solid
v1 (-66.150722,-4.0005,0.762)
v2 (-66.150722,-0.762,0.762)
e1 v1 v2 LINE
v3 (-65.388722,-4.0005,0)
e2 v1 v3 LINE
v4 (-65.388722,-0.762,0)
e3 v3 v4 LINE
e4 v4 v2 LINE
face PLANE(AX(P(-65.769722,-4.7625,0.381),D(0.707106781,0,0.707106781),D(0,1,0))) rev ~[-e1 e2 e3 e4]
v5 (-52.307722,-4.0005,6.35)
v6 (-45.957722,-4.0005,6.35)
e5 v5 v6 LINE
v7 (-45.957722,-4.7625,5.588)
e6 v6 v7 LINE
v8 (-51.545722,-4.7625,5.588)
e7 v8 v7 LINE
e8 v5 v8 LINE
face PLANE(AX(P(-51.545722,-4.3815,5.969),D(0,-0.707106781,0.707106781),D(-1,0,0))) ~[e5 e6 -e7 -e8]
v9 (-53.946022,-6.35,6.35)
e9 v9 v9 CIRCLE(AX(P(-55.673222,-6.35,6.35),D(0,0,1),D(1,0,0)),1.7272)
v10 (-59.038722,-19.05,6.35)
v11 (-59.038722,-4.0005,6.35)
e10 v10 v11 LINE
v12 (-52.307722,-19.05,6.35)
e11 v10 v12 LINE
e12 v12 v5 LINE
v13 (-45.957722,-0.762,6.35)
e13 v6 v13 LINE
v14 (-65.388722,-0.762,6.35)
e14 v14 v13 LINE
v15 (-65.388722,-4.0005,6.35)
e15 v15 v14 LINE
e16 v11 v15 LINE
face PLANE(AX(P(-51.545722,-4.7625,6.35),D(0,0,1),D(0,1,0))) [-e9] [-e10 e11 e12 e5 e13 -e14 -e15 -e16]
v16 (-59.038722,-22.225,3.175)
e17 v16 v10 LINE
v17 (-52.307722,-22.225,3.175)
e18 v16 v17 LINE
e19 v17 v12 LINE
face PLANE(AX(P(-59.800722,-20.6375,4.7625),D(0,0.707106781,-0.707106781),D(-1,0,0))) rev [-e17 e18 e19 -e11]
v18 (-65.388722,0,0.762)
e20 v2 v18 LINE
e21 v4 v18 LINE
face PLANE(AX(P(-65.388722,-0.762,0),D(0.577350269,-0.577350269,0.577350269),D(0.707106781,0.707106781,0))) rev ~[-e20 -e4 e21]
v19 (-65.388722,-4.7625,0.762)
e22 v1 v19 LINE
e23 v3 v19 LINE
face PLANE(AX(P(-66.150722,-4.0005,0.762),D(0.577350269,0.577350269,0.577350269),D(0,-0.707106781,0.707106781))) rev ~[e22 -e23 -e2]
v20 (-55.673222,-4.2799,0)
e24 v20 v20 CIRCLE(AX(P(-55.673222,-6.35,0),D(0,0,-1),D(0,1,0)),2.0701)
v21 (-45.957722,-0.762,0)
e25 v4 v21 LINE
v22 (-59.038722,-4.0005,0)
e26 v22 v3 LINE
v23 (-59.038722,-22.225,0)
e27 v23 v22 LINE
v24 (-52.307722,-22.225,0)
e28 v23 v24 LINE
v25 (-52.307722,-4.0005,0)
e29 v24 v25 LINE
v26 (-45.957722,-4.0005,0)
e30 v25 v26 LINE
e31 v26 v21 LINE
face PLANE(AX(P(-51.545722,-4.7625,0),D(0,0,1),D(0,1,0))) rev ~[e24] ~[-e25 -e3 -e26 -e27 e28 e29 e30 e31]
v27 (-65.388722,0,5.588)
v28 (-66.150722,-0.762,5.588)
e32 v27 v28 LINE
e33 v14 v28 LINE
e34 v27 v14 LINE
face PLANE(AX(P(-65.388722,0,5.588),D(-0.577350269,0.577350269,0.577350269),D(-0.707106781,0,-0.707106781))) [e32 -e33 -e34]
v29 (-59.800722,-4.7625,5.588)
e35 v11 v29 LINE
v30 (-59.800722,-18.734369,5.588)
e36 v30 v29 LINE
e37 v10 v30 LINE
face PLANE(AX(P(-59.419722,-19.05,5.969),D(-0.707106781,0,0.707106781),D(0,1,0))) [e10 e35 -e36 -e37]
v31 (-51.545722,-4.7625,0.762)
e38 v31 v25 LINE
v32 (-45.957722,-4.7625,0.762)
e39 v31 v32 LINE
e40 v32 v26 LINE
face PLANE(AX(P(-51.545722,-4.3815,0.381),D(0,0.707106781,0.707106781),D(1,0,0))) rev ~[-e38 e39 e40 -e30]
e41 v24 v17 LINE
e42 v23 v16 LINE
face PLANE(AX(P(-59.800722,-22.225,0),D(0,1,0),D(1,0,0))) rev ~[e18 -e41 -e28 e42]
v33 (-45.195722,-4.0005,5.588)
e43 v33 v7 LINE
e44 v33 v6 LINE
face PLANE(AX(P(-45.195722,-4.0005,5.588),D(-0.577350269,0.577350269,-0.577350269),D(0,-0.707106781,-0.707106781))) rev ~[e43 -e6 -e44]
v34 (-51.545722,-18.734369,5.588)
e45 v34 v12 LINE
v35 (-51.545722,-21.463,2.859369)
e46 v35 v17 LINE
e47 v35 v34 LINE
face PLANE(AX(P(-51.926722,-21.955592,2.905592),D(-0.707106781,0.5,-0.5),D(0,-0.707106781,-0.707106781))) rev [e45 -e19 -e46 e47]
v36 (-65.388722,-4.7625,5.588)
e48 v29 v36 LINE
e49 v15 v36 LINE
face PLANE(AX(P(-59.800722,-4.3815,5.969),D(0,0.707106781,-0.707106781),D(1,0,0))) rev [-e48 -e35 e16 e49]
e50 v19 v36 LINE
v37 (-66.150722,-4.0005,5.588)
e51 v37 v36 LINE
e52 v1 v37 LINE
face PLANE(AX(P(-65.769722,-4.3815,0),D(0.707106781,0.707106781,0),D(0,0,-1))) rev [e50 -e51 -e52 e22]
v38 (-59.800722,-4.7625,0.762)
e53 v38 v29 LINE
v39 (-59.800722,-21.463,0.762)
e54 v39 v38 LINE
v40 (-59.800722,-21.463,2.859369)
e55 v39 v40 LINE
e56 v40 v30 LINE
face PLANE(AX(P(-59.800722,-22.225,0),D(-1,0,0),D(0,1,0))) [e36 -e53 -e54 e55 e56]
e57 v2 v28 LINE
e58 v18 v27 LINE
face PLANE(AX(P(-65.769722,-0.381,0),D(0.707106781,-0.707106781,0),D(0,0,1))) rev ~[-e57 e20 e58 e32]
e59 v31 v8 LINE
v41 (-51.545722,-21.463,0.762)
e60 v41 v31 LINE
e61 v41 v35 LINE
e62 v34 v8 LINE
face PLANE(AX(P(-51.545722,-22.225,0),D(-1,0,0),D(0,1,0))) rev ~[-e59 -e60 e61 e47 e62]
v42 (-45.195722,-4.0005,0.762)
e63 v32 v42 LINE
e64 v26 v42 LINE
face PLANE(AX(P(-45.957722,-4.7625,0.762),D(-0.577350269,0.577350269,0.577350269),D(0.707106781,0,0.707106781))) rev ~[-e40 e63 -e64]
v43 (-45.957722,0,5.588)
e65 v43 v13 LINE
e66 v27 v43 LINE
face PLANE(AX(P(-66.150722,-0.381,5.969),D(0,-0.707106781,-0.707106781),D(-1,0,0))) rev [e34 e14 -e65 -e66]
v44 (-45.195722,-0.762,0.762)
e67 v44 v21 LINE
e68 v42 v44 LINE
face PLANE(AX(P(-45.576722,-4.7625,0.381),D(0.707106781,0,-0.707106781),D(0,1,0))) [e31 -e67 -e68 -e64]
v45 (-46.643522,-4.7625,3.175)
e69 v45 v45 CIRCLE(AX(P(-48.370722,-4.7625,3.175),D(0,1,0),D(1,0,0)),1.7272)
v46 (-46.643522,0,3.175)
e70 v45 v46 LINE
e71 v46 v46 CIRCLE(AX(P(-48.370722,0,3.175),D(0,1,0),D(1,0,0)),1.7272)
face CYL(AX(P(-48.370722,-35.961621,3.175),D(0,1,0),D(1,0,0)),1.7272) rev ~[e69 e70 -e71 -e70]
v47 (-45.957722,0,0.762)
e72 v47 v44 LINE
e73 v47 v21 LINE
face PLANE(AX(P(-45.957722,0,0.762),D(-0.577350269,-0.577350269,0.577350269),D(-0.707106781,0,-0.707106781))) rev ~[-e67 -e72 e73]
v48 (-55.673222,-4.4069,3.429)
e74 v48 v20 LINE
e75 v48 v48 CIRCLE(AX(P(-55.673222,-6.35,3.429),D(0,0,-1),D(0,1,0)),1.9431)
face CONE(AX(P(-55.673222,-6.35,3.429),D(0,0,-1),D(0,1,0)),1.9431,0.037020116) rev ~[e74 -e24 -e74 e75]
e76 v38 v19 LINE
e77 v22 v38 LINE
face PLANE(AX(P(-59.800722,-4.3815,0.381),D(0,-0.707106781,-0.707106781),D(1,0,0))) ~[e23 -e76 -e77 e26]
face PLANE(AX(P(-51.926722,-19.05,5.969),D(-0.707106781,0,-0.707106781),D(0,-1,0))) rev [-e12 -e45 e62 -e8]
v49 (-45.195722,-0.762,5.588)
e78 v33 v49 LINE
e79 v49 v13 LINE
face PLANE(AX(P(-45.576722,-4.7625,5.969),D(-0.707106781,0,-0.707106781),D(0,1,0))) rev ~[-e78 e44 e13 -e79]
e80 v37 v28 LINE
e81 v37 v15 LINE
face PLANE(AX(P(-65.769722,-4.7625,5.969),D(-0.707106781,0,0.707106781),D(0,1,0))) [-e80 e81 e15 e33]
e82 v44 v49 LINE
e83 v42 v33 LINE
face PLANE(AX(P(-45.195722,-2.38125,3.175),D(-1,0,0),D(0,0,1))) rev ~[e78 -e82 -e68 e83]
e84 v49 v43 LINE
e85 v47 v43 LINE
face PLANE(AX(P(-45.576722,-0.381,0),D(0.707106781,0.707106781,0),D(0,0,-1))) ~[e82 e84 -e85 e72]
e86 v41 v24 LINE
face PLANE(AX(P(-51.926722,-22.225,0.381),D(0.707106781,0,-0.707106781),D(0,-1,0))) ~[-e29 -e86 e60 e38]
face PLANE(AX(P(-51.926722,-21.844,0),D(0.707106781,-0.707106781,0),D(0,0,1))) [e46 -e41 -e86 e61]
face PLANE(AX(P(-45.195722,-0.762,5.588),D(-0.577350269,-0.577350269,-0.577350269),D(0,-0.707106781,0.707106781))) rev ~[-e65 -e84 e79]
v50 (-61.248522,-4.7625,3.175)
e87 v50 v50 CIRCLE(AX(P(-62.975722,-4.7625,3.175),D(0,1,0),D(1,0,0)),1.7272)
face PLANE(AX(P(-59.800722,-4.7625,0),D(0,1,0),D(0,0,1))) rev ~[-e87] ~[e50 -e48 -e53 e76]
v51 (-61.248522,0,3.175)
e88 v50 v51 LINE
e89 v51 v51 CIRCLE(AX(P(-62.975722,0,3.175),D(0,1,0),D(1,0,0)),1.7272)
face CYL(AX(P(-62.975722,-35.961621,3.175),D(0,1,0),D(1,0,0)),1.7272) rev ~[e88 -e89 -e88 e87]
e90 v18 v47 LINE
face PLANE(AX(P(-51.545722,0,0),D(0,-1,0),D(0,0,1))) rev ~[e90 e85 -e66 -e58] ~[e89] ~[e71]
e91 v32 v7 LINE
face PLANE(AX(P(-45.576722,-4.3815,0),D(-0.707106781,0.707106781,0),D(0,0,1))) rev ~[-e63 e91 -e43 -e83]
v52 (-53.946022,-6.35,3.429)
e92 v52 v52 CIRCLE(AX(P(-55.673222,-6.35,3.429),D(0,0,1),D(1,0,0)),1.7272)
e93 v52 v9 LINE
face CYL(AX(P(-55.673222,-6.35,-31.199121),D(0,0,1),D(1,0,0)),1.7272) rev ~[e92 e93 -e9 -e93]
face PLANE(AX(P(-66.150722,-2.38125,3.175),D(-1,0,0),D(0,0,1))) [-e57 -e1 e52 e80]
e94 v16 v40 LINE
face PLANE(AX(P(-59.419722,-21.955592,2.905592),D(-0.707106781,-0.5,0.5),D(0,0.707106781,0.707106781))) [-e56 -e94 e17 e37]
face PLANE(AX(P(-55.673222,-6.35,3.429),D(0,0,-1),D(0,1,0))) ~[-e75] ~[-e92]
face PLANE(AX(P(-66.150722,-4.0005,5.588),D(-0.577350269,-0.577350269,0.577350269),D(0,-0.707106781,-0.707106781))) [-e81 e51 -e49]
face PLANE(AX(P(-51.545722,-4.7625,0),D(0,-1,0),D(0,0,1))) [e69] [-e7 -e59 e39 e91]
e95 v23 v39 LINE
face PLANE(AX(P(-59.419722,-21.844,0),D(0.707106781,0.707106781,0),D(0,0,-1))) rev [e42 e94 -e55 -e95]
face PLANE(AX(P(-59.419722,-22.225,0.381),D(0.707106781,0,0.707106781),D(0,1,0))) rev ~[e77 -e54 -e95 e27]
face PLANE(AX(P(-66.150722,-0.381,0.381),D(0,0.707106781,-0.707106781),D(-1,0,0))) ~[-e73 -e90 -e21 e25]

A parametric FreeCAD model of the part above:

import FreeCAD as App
import Part
import Sketcher

V = App.Vector
Q = App.Units.Quantity


def edges_at(feature, points):
    """Names of the edges that pass closest to the given points."""
    edges = feature.Shape.Edges
    near = lambda p: min(range(len(edges)), key=lambda i: edges[i].distToShape(Part.Vertex(*p))[0])
    return sorted({f"Edge{near(p) + 1}" for p in points})


def add_polygon(sketch, points):
    """Adds a closed chain of lines whose ends are joined by coincident constraints."""
    first, n = sketch.GeometryCount, len(points)
    for a, b in zip(points, points[1:] + points[:1]):
        sketch.addGeometry(Part.LineSegment(App.Vector(*a, 0), App.Vector(*b, 0)), False)
    for i in range(n):
        sketch.addConstraint(Sketcher.Constraint("Coincident", first + i, 2, first + (i + 1) % n, 1))

doc = App.newDocument("Part")
body = doc.addObject("PartDesign::Body", "Body")

# Sketch on XY plane
sketch1 = body.newObject("Sketcher::SketchObject", "Sketch")
sketch1.AttachmentSupport = (doc.getObject("XY_Plane"), [""])
sketch1.MapMode = "FlatFace"
add_polygon(sketch1, [(-60, 0), (-60, -22), (-52, -22), (-52, 0)])  # lines 0-3
sketch1.addConstraint([
    Sketcher.Constraint("Vertical", 0),
    Sketcher.Constraint("Horizontal", 1),
    Sketcher.Constraint("Vertical", 2),
    Sketcher.Constraint("Horizontal", 3),
    Sketcher.Constraint("PointOnObject", 2, 2, -1),
    Sketcher.Constraint("DistanceX", 1, 1, 1, 2, Q("0.325 in")),
    Sketcher.Constraint("DistanceY", 0, 2, 0, 1, Q("0.875 in")),
    Sketcher.Constraint("DistanceX", 0, 2, -1, 1, 59.800722),
])
pad1 = body.newObject("PartDesign::Pad", "Pad")
pad1.Profile = sketch1
pad1.Length = Q("0.25 in")

# Sketch on YZ plane
sketch2 = body.newObject("Sketcher::SketchObject", "Sketch001")
sketch2.AttachmentSupport = (doc.getObject("YZ_Plane"), [""])
sketch2.MapMode = "FlatFace"
sketch2.AttachmentOffset = App.Placement(V(0, 0, -59.800722), App.Rotation())
add_polygon(sketch2, [(0, 0), (-4.8, 0), (-4.8, 6.3), (0, 6.3)])  # lines 0-3
sketch2.addConstraint([
    Sketcher.Constraint("Horizontal", 0),
    Sketcher.Constraint("Vertical", 1),
    Sketcher.Constraint("Horizontal", 2),
    Sketcher.Constraint("Vertical", 3),
    Sketcher.Constraint("Coincident", 3, 2, -1, 1),
    Sketcher.Constraint("DistanceY", 1, 1, 1, 2, Q("0.25 in")),
    Sketcher.Constraint("DistanceX", 0, 2, 0, 1, Q("0.1875 in")),
])
pad2 = body.newObject("PartDesign::Pad", "Pad001")
pad2.Profile = sketch2
pad2.Length = Q("0.25 in")
pad2.Reversed = True

# Sketch on YZ plane
sketch3 = body.newObject("Sketcher::SketchObject", "Sketch002")
sketch3.AttachmentSupport = (doc.getObject("YZ_Plane"), [""])
sketch3.MapMode = "FlatFace"
sketch3.AttachmentOffset = App.Placement(V(0, 0, -51.545722), App.Rotation())
add_polygon(sketch3, [(0, 0), (-4.8, 0), (-4.8, 6.3), (0, 6.3)])  # lines 0-3
sketch3.addConstraint([
    Sketcher.Constraint("Horizontal", 0),
    Sketcher.Constraint("Vertical", 1),
    Sketcher.Constraint("Horizontal", 2),
    Sketcher.Constraint("Vertical", 3),
    Sketcher.Constraint("Coincident", 3, 2, -1, 1),
    Sketcher.Constraint("DistanceY", 1, 1, 1, 2, Q("0.25 in")),
    Sketcher.Constraint("DistanceX", 0, 2, 0, 1, Q("0.1875 in")),
])
pad3 = body.newObject("PartDesign::Pad", "Pad002")
pad3.Profile = sketch3
pad3.Length = Q("0.25 in")

# Sketch on XY plane
sketch4 = body.newObject("Sketcher::SketchObject", "Sketch003")
sketch4.AttachmentSupport = (doc.getObject("XY_Plane"), [""])
sketch4.MapMode = "FlatFace"
sketch4.addGeometry(Part.Circle(V(-55.7, -6.3, 0), V(0, 0, 1), 1.7), False)
sketch4.addConstraint([
    Sketcher.Constraint("Diameter", 0, Q("0.136 in")),
    Sketcher.Constraint("DistanceY", 0, 3, -1, 1, Q("0.25 in")),
    Sketcher.Constraint("DistanceX", 0, 3, -1, 1, 55.673222),
])
doc.recompute()
hole = body.newObject("PartDesign::Hole", "Hole")
hole.Profile = sketch4
hole.ThreadType = "None"
hole.Diameter = Q("0.136 in")
hole.DepthType = "ThroughAll"
hole.Reversed = True

# Sketch on YZ plane
sketch5 = body.newObject("Sketcher::SketchObject", "Sketch004")
sketch5.AttachmentSupport = (doc.getObject("YZ_Plane"), [""])
sketch5.MapMode = "FlatFace"
sketch5.AttachmentOffset = App.Placement(V(0, 0, -55.673222), App.Rotation())
add_polygon(sketch5, [(-6.3, 3.4), (-6.3, 0), (-4.3, 0), (-4.4, 3.4)])  # lines 0-3
sketch5.addGeometry(Part.LineSegment(V(-6.3, 3.4, 0), V(-6.3, 0, 0)), True)  # axis
sketch5.addConstraint([
    Sketcher.Constraint("Vertical", 0),
    Sketcher.Constraint("Horizontal", 1),
    Sketcher.Constraint("Horizontal", 3),
    Sketcher.Constraint("Vertical", 4),
    Sketcher.Constraint("Coincident", 4, 1, 3, 2),
    Sketcher.Constraint("PointOnObject", 0, 2, -1),
    Sketcher.Constraint("PointOnObject", 4, 2, -1),
    Sketcher.Constraint("DistanceY", 0, 2, 0, 1, Q("0.135 in")),
    Sketcher.Constraint("DistanceX", 0, 2, -1, 1, Q("0.25 in")),
    Sketcher.Constraint("DistanceX", 1, 1, 1, 2, Q("0.0815 in")),
    Sketcher.Constraint("DistanceX", 3, 2, 3, 1, Q("0.0765 in")),
])
groove = body.newObject("PartDesign::Groove", "Groove")
groove.Profile = sketch5
groove.ReferenceAxis = (sketch5, ["Axis0"])
groove.Angle = 360

# Sketch on XZ plane
sketch6 = body.newObject("Sketcher::SketchObject", "Sketch005")
sketch6.AttachmentSupport = (doc.getObject("XZ_Plane"), [""])
sketch6.MapMode = "FlatFace"
sketch6.AttachmentOffset = App.Placement(V(0, 0, 0.1875 * 25.4), App.Rotation())
sketch6.addGeometry([
    Part.Circle(V(-48.4, 3.2, 0), V(0, 0, 1), 1.7),
    Part.Circle(V(-63, 3.2, 0), V(0, 0, 1), 1.7),
], False)
sketch6.addConstraint([
    Sketcher.Constraint("Equal", 0, 1),
    Sketcher.Constraint("Horizontal", 0, 3, 1, 3),
    Sketcher.Constraint("Diameter", 0, Q("0.136 in")),
    Sketcher.Constraint("DistanceY", -1, 1, 0, 3, Q("0.125 in")),
    Sketcher.Constraint("DistanceX", 1, 3, 0, 3, Q("0.575 in")),
    Sketcher.Constraint("DistanceX", 0, 3, -1, 1, 48.370722),
])
doc.recompute()
hole2 = body.newObject("PartDesign::Hole", "Hole001")
hole2.Profile = sketch6
hole2.ThreadType = "None"
hole2.Diameter = Q("0.136 in")
hole2.DepthType = "ThroughAll"
doc.recompute()

chamfer = body.newObject("PartDesign::Chamfer", "Chamfer")
chamfer.Base = (hole2, edges_at(hole2, [(-55.673, -22.225, 6.35)]))
chamfer.Size = Q("0.125 in")
doc.recompute()

chamfer2 = body.newObject("PartDesign::Chamfer", "Chamfer001")
chamfer2.Base = (chamfer, edges_at(chamfer, [
    (-59.801, -13.494, 0),
    (-59.801, -11.906, 6.35),
    (-62.976, -4.763, 6.35),
    (-62.976, -4.763, 0),
    (-66.151, -2.381, 6.35),
    (-55.673, 0, 6.35),
    (-66.151, 0, 3.175),
    (-66.151, -2.381, 0),
    (-66.151, -4.763, 3.175),
    (-45.196, -2.381, 0),
    (-48.371, -4.763, 0),
    (-45.196, 0, 3.175),
    (-48.371, -4.763, 6.35),
    (-45.196, -2.381, 6.35),
    (-45.196, -4.763, 3.175),
    (-55.673, 0, 0),
    (-51.546, -13.494, 0),
    (-51.546, -11.906, 6.35),
    (-51.546, -22.225, 1.587),
    (-51.546, -20.637, 4.763),
    (-59.801, -22.225, 1.587),
    (-59.801, -20.637, 4.763),
]))
chamfer2.Size = Q("0.03 in")

doc.recompute()
